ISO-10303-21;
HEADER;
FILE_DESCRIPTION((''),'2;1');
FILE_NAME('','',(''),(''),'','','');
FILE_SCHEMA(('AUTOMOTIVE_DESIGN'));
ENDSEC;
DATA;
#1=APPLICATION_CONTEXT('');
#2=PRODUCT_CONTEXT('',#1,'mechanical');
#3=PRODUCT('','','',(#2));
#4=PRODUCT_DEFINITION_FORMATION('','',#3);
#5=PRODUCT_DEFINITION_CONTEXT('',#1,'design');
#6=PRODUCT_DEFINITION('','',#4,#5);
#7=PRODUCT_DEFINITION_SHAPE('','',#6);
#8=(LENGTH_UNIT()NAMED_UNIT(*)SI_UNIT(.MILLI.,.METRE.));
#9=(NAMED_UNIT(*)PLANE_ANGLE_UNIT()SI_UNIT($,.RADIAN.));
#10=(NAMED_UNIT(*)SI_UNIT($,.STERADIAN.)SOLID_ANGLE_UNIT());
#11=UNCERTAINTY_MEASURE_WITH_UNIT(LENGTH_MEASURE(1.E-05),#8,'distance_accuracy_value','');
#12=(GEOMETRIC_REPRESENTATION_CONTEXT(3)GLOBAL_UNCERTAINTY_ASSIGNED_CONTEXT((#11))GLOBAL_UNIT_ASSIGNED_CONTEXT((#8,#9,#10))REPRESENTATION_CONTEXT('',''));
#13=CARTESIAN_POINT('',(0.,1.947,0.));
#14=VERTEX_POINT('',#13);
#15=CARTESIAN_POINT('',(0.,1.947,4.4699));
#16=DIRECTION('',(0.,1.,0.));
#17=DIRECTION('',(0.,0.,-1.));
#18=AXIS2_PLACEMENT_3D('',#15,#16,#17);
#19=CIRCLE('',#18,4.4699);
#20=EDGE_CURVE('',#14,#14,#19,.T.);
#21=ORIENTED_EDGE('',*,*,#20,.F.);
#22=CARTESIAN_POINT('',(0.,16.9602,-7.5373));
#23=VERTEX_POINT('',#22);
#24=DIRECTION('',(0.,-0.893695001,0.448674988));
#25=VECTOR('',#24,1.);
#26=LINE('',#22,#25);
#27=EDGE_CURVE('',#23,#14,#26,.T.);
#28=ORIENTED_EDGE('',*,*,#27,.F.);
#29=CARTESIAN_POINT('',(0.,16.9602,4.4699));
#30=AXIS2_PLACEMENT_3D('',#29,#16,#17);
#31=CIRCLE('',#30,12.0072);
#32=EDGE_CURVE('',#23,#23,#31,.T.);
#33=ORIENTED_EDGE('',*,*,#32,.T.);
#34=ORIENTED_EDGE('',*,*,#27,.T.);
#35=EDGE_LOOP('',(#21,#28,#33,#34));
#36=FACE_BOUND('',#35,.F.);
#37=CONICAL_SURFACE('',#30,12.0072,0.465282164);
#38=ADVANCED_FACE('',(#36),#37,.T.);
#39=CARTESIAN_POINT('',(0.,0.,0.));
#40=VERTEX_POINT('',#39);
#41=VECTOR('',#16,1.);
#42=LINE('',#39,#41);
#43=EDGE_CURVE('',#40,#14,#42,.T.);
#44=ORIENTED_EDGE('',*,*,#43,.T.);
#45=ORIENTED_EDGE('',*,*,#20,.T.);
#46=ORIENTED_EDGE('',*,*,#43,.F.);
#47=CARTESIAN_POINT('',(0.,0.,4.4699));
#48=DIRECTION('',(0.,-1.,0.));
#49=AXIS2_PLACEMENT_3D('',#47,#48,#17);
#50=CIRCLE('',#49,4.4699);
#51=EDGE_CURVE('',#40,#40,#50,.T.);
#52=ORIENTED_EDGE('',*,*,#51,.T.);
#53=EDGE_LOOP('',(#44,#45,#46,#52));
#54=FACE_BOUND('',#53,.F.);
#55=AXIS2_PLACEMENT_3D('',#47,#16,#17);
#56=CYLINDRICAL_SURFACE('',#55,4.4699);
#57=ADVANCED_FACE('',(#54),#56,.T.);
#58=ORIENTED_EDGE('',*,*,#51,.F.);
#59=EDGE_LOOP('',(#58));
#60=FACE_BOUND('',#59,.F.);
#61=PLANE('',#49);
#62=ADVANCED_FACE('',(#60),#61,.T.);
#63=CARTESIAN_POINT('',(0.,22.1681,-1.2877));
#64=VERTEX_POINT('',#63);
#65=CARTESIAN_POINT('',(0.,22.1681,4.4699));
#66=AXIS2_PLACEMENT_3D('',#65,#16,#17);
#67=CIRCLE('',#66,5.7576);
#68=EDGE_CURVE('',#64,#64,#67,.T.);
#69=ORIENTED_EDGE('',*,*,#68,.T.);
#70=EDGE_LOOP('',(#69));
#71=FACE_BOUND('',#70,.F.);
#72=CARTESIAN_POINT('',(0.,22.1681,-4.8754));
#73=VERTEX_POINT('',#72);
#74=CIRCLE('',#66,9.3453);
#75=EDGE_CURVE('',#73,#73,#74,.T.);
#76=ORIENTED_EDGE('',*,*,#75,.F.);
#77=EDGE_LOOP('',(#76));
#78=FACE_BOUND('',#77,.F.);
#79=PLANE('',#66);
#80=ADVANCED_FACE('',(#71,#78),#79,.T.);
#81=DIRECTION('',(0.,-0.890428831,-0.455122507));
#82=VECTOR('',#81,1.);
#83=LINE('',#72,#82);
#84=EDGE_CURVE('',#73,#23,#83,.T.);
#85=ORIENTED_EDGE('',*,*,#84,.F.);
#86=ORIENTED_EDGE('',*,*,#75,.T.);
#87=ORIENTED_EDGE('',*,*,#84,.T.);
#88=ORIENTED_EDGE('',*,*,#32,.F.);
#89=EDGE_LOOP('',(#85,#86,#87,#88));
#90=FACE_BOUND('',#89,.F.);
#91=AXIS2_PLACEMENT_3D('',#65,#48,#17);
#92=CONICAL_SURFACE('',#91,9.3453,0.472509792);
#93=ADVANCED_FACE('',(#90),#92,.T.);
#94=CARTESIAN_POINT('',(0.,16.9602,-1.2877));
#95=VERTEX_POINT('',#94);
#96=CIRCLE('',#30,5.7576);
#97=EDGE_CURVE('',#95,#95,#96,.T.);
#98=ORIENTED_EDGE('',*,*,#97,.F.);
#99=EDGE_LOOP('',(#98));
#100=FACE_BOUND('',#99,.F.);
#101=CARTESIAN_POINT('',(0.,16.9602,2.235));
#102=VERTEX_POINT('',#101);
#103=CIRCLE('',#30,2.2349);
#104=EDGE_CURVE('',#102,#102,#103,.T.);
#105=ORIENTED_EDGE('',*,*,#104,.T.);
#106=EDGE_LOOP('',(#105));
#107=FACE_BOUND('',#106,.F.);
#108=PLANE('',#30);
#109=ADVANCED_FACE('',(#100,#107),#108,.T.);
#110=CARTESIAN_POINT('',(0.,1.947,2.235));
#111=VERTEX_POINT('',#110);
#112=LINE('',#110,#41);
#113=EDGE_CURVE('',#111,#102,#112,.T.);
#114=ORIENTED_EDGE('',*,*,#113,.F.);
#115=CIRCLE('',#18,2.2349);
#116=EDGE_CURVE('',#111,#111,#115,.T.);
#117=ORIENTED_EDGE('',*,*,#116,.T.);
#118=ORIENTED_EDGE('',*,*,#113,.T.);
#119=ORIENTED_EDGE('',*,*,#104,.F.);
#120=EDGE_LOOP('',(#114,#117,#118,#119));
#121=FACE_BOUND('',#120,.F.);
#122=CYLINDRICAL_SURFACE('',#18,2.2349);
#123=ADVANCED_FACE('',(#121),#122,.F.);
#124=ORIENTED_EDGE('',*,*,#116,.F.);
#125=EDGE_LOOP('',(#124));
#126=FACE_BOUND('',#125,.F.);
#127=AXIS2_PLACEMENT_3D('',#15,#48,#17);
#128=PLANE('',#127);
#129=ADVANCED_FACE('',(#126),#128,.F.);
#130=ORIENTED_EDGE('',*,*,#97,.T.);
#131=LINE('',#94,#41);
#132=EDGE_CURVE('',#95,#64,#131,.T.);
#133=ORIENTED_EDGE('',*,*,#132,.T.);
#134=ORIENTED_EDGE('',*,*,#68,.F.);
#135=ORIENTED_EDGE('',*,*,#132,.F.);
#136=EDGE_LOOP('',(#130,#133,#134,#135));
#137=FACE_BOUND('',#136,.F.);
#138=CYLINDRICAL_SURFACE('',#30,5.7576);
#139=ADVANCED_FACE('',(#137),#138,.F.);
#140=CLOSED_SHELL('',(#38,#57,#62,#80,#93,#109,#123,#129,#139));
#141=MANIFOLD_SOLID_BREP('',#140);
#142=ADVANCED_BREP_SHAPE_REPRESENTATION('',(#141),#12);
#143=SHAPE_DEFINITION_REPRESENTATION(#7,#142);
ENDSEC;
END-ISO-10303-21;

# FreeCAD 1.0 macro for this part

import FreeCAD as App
import Part
import Sketcher
from FreeCAD import Vector
Q = App.Units.Quantity

doc = App.newDocument("Part")
params = doc.addObject("Spreadsheet::Sheet", "Params")
for row, (alias, value) in enumerate([
    ("sketch1_height", "0.088 in"),
    ("revolution_angle", "360 deg"),
    ("revolution2_angle", "360 deg"),
], start=1):
    params.set(f"A{row}", alias)
    params.set(f"B{row}", "=" + value)
    params.setAlias(f"B{row}", alias)

body = doc.addObject("PartDesign::Body", "Body")

# Sketch on YZ plane
sketch1 = doc.addObject("Sketcher::SketchObject", "Sketch")
body.addObject(sketch1)
sketch1.AttachmentSupport = (doc.YZ_Plane, [""])
sketch1.MapMode = "FlatFace"
sketch1.addGeometry([
    Part.LineSegment(Vector(1.947, 2.235, 0), Vector(1.947, 0, 0)),  # 0
    Part.LineSegment(Vector(1.947, 0, 0), Vector(16.9602, -7.5373, 0)),  # 1
    Part.LineSegment(Vector(16.9602, -7.5373, 0), Vector(22.1681, -4.8754, 0)),  # 2
    Part.LineSegment(Vector(22.1681, -4.8754, 0), Vector(22.1681, -1.2877, 0)),  # 3
    Part.LineSegment(Vector(22.1681, -1.2877, 0), Vector(16.9602, -1.2877, 0)),  # 4
    Part.LineSegment(Vector(16.9602, -1.2877, 0), Vector(16.9602, 2.235, 0)),  # 5
    Part.LineSegment(Vector(16.9602, 2.235, 0), Vector(1.947, 2.235, 0)),  # 6
], False)
sketch1.addGeometry(Part.LineSegment(Vector(1.947, 4.4699, 0), Vector(22.1681, 4.4699, 0)), True)  # axis
sketch1.addConstraint([
    Sketcher.Constraint("Coincident", 0, 2, 1, 1),
    Sketcher.Constraint("Coincident", 1, 2, 2, 1),
    Sketcher.Constraint("Coincident", 2, 2, 3, 1),
    Sketcher.Constraint("Coincident", 3, 2, 4, 1),
    Sketcher.Constraint("Coincident", 4, 2, 5, 1),
    Sketcher.Constraint("Coincident", 5, 2, 6, 1),
    Sketcher.Constraint("Coincident", 6, 2, 0, 1),
    Sketcher.Constraint("Vertical", 0),
    Sketcher.Constraint("Vertical", 3),
    Sketcher.Constraint("Horizontal", 4),
    Sketcher.Constraint("Vertical", 5),
    Sketcher.Constraint("Horizontal", 6),
    Sketcher.Constraint("Horizontal", 7),
    Sketcher.Constraint("PointOnObject", 0, 2, -1),
    Sketcher.Constraint("Vertical", 1, 2, 4, 2),
    Sketcher.Constraint("Vertical", 6, 2, 7, 1),
    Sketcher.Constraint("Vertical", 3, 2, 7, 2),
    Sketcher.Constraint("DistanceY", 0, 2, 0, 1, Q("0.088 in")),
    Sketcher.Constraint("DistanceX", 7, 1, 7, 2, Q("0.7961 in")),
    Sketcher.Constraint("DistanceY", 5, 1, 5, 2, Q("0.1387 in")),
    Sketcher.Constraint("DistanceY", 6, 2, 7, 1, Q("0.088 in")),
    Sketcher.Constraint("DistanceX", 4, 2, 4, 1, Q("5.208 mm")),
    Sketcher.Constraint("DistanceY", 3, 1, 3, 2, Q("3.5877 mm")),
    Sketcher.Constraint("DistanceY", 1, 2, 2, 2, Q("0.1048 in")),
    Sketcher.Constraint("DistanceX", -1, 1, 0, 2, Q("1.947 mm")),
])
sketch1.setExpression("Constraints[17]", "Params.sketch1_height")
revolution = doc.addObject("PartDesign::Revolution", "Revolution")
body.addObject(revolution)
revolution.Profile = sketch1
revolution.ReferenceAxis = (sketch1, ["Axis0"])
revolution.setExpression("Angle", "Params.revolution_angle")

# Sketch on YZ plane
sketch2 = doc.addObject("Sketcher::SketchObject", "Sketch001")
body.addObject(sketch2)
sketch2.AttachmentSupport = (doc.YZ_Plane, [""])
sketch2.MapMode = "FlatFace"
sketch2.addGeometry([
    Part.LineSegment(Vector(1.947, 0, 0), Vector(1.947, 4.4699, 0)),
    Part.LineSegment(Vector(1.947, 4.4699, 0), Vector(0, 4.4699, 0)),
    Part.LineSegment(Vector(0, 4.4699, 0), Vector(0, 0, 0)),
    Part.LineSegment(Vector(0, 0, 0), Vector(1.947, 0, 0)),
], False)
sketch2.addGeometry(Part.LineSegment(Vector(1.947, 4.4699, 0), Vector(0, 4.4699, 0)), True)  # axis
sketch2.addConstraint([
    Sketcher.Constraint("Coincident", 0, 2, 1, 1),
    Sketcher.Constraint("Coincident", 1, 2, 2, 1),
    Sketcher.Constraint("Coincident", 2, 2, 3, 1),
    Sketcher.Constraint("Coincident", 3, 2, 0, 1),
    Sketcher.Constraint("Vertical", 0),
    Sketcher.Constraint("Horizontal", 1),
    Sketcher.Constraint("Vertical", 2),
    Sketcher.Constraint("Horizontal", 3),
    Sketcher.Constraint("Horizontal", 4),
    Sketcher.Constraint("Coincident", 2, 2, -1, 1),
    Sketcher.Constraint("Coincident", 4, 1, 0, 2),
    Sketcher.Constraint("PointOnObject", 4, 2, -2),
    Sketcher.Constraint("DistanceX", 1, 2, 1, 1, Q("1.947 mm")),
    Sketcher.Constraint("DistanceY", 0, 1, 0, 2, Q("4.47 mm")),
])
revolution2 = doc.addObject("PartDesign::Revolution", "Revolution001")
body.addObject(revolution2)
revolution2.Profile = sketch2
revolution2.ReferenceAxis = (sketch2, ["Axis0"])
revolution2.setExpression("Angle", "Params.revolution2_angle")

doc.recompute()
